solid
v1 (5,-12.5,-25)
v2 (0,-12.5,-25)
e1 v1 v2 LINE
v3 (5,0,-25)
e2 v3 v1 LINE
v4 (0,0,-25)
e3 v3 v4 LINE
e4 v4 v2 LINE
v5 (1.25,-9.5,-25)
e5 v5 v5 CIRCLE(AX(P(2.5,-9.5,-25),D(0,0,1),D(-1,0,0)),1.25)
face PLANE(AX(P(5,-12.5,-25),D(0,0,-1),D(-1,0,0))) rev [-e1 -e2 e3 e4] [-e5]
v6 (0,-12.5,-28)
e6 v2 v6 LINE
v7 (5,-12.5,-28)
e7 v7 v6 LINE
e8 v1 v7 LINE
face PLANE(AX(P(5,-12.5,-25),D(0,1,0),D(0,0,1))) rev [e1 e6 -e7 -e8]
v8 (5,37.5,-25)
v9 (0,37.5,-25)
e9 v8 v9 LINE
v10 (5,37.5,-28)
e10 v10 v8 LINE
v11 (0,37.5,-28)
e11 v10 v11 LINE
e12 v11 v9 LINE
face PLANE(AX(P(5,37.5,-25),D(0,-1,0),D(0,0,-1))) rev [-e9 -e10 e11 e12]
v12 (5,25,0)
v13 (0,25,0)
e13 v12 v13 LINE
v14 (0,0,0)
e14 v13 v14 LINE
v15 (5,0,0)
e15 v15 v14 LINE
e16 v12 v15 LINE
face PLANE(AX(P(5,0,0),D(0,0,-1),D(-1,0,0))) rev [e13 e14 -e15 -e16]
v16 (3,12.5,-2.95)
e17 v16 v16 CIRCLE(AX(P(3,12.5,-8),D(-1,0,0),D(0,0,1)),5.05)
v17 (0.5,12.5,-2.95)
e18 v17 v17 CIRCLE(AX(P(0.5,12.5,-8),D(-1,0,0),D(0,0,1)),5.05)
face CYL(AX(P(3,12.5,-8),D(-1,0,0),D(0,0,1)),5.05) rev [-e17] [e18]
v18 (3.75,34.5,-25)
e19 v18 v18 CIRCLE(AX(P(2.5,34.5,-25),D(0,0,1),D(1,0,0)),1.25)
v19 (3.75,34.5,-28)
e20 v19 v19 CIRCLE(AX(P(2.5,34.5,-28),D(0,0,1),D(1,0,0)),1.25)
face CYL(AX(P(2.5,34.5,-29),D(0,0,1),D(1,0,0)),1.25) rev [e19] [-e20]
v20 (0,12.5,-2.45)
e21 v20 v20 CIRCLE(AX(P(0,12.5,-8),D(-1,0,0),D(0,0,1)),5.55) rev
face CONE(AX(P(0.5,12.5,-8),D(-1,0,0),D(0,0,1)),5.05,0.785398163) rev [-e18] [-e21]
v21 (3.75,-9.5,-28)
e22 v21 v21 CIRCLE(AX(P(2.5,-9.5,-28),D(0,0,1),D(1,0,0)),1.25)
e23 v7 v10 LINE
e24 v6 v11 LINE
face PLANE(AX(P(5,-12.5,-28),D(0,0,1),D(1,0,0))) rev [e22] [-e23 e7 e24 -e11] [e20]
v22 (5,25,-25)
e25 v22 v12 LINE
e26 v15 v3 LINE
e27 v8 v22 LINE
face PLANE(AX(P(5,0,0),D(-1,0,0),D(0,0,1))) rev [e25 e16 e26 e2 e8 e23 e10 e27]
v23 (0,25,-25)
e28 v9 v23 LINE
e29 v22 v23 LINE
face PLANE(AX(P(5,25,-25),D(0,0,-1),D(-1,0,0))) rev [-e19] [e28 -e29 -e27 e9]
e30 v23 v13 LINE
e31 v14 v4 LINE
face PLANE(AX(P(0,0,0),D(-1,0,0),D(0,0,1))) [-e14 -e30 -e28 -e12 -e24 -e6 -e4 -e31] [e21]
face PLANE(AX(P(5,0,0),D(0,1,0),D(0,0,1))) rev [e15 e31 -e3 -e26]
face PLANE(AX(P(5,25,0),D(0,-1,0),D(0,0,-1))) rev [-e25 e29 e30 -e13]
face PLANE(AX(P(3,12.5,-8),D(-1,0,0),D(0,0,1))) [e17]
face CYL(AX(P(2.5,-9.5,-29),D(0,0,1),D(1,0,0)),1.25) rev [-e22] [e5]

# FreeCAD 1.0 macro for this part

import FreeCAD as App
import Part
import Sketcher

V = App.Vector


def edges_at(feature, points):
    """Names of the edges that pass closest to the given points."""
    edges = feature.Shape.Edges
    near = lambda p: min(range(len(edges)), key=lambda i: edges[i].distToShape(Part.Vertex(*p))[0])
    return sorted({f"Edge{near(p) + 1}" for p in points})


def add_polygon(sketch, points):
    """Adds a closed chain of lines whose ends are joined by coincident constraints."""
    first, n = sketch.GeometryCount, len(points)
    for a, b in zip(points, points[1:] + points[:1]):
        sketch.addGeometry(Part.LineSegment(App.Vector(*a, 0), App.Vector(*b, 0)), False)
    for i in range(n):
        sketch.addConstraint(Sketcher.Constraint("Coincident", first + i, 2, first + (i + 1) % n, 1))

doc = App.newDocument("Part")
params = doc.addObject("Spreadsheet::Sheet", "Params")
for row, (alias, value) in enumerate([
    ("sketch1_width", "25 mm"),
    ("sketch1_width2", "50 mm"),
    ("sketch1_height", "3 mm"),
    ("pad1_length", "5 mm"),
    ("sketch2_diameter", "2.5 mm"),
    ("pocket1_length", "4 mm"),
    ("sketch3_diameter", "10.1 mm"),
    ("pocket2_length", "3 mm"),
    ("chamfer_size", "0.5 mm"),
], start=1):
    params.set(f"A{row}", alias)
    params.set(f"B{row}", "=" + value)
    params.setAlias(f"B{row}", alias)

body = doc.addObject("PartDesign::Body", "Body")

sketch1 = body.newObject("Sketcher::SketchObject", "Sketch")
sketch1.AttachmentSupport = (doc.getObject("YZ_Plane"), [""])
sketch1.MapMode = "FlatFace"
add_polygon(sketch1, [(37.5, -25), (25, -25), (25, 0), (0, 0), (0, -25), (-12.5, -25), (-12.5, -28), (37.5, -28)])
sketch1.addConstraint(Sketcher.Constraint("Horizontal", 0))
sketch1.addConstraint(Sketcher.Constraint("Vertical", 1))
sketch1.addConstraint(Sketcher.Constraint("Horizontal", 2))
sketch1.addConstraint(Sketcher.Constraint("Vertical", 3))
sketch1.addConstraint(Sketcher.Constraint("Horizontal", 4))
sketch1.addConstraint(Sketcher.Constraint("Vertical", 5))
sketch1.addConstraint(Sketcher.Constraint("Horizontal", 6))
sketch1.addConstraint(Sketcher.Constraint("Vertical", 7))
sketch1.addConstraint(Sketcher.Constraint("Coincident", 2, 2, -1, 1))
sketch1.addConstraint(Sketcher.Constraint("Horizontal", 0, 2, 3, 2))
sketch1.addConstraint(Sketcher.Constraint("Equal", 0, 4))
sketch1.addConstraint(Sketcher.Constraint("Equal", 2, 1))
sketch1.addConstraint(Sketcher.Constraint("DistanceX", 2, 2, 2, 1, 25.0))
sketch1.addConstraint(Sketcher.Constraint("DistanceX", 6, 1, 6, 2, 50.0))
sketch1.addConstraint(Sketcher.Constraint("DistanceY", 5, 2, 5, 1, 3.0))
sketch1.setExpression("Constraints[20]", "Params.sketch1_width")
sketch1.setExpression("Constraints[21]", "Params.sketch1_width2")
sketch1.setExpression("Constraints[22]", "Params.sketch1_height")
pad1 = body.newObject("PartDesign::Pad", "Pad")
pad1.Profile = sketch1
pad1.setExpression("Length", "Params.pad1_length")

sketch2 = body.newObject("Sketcher::SketchObject", "Sketch001")
sketch2.AttachmentSupport = (doc.getObject("XY_Plane"), [""])
sketch2.MapMode = "FlatFace"
sketch2.AttachmentOffset = App.Placement(V(0, 0, -25), App.Rotation())
sketch2.addGeometry(Part.Circle(V(2.5, 34.5, 0), V(0, 0, 1), 1.2), False)
sketch2.addGeometry(Part.Circle(V(2.5, -9.5, 0), V(0, 0, 1), 1.2), False)
sketch2.addConstraint(Sketcher.Constraint("Equal", 0, 1))
sketch2.addConstraint(Sketcher.Constraint("Vertical", 0, 3, 1, 3))
sketch2.addConstraint(Sketcher.Constraint("Diameter", 0, 2.5))
sketch2.addConstraint(Sketcher.Constraint("DistanceY", 1, 3, 0, 3, 44.0))
sketch2.addConstraint(Sketcher.Constraint("DistanceX", -1, 1, 0, 3, 2.5))
sketch2.addConstraint(Sketcher.Constraint("DistanceY", -1, 1, 0, 3, 34.5))
sketch2.setExpression("Constraints[2]", "Params.sketch2_diameter")
pocket1 = body.newObject("PartDesign::Pocket", "Pocket")
pocket1.Profile = sketch2
pocket1.setExpression("Length", "Params.pocket1_length")

sketch3 = body.newObject("Sketcher::SketchObject", "Sketch002")
sketch3.AttachmentSupport = (doc.getObject("YZ_Plane"), [""])
sketch3.MapMode = "FlatFace"
sketch3.addGeometry(Part.Circle(V(12, -8, 0), V(0, 0, 1), 5), False)
sketch3.addConstraint(Sketcher.Constraint("Diameter", 0, 10.1))
sketch3.addConstraint(Sketcher.Constraint("DistanceY", 0, 3, -1, 1, 8.0))
sketch3.addConstraint(Sketcher.Constraint("DistanceX", -1, 1, 0, 3, 12.5))
sketch3.setExpression("Constraints[0]", "Params.sketch3_diameter")
pocket2 = body.newObject("PartDesign::Pocket", "Pocket001")
pocket2.Profile = sketch3
pocket2.setExpression("Length", "Params.pocket2_length")
pocket2.Reversed = True
doc.recompute()

chamfer = body.newObject("PartDesign::Chamfer", "Chamfer")
chamfer.Base = (pocket2, edges_at(pocket2, [(0, 12.5, -13.05)]))
chamfer.setExpression("Size", "Params.chamfer_size")

doc.recompute()
